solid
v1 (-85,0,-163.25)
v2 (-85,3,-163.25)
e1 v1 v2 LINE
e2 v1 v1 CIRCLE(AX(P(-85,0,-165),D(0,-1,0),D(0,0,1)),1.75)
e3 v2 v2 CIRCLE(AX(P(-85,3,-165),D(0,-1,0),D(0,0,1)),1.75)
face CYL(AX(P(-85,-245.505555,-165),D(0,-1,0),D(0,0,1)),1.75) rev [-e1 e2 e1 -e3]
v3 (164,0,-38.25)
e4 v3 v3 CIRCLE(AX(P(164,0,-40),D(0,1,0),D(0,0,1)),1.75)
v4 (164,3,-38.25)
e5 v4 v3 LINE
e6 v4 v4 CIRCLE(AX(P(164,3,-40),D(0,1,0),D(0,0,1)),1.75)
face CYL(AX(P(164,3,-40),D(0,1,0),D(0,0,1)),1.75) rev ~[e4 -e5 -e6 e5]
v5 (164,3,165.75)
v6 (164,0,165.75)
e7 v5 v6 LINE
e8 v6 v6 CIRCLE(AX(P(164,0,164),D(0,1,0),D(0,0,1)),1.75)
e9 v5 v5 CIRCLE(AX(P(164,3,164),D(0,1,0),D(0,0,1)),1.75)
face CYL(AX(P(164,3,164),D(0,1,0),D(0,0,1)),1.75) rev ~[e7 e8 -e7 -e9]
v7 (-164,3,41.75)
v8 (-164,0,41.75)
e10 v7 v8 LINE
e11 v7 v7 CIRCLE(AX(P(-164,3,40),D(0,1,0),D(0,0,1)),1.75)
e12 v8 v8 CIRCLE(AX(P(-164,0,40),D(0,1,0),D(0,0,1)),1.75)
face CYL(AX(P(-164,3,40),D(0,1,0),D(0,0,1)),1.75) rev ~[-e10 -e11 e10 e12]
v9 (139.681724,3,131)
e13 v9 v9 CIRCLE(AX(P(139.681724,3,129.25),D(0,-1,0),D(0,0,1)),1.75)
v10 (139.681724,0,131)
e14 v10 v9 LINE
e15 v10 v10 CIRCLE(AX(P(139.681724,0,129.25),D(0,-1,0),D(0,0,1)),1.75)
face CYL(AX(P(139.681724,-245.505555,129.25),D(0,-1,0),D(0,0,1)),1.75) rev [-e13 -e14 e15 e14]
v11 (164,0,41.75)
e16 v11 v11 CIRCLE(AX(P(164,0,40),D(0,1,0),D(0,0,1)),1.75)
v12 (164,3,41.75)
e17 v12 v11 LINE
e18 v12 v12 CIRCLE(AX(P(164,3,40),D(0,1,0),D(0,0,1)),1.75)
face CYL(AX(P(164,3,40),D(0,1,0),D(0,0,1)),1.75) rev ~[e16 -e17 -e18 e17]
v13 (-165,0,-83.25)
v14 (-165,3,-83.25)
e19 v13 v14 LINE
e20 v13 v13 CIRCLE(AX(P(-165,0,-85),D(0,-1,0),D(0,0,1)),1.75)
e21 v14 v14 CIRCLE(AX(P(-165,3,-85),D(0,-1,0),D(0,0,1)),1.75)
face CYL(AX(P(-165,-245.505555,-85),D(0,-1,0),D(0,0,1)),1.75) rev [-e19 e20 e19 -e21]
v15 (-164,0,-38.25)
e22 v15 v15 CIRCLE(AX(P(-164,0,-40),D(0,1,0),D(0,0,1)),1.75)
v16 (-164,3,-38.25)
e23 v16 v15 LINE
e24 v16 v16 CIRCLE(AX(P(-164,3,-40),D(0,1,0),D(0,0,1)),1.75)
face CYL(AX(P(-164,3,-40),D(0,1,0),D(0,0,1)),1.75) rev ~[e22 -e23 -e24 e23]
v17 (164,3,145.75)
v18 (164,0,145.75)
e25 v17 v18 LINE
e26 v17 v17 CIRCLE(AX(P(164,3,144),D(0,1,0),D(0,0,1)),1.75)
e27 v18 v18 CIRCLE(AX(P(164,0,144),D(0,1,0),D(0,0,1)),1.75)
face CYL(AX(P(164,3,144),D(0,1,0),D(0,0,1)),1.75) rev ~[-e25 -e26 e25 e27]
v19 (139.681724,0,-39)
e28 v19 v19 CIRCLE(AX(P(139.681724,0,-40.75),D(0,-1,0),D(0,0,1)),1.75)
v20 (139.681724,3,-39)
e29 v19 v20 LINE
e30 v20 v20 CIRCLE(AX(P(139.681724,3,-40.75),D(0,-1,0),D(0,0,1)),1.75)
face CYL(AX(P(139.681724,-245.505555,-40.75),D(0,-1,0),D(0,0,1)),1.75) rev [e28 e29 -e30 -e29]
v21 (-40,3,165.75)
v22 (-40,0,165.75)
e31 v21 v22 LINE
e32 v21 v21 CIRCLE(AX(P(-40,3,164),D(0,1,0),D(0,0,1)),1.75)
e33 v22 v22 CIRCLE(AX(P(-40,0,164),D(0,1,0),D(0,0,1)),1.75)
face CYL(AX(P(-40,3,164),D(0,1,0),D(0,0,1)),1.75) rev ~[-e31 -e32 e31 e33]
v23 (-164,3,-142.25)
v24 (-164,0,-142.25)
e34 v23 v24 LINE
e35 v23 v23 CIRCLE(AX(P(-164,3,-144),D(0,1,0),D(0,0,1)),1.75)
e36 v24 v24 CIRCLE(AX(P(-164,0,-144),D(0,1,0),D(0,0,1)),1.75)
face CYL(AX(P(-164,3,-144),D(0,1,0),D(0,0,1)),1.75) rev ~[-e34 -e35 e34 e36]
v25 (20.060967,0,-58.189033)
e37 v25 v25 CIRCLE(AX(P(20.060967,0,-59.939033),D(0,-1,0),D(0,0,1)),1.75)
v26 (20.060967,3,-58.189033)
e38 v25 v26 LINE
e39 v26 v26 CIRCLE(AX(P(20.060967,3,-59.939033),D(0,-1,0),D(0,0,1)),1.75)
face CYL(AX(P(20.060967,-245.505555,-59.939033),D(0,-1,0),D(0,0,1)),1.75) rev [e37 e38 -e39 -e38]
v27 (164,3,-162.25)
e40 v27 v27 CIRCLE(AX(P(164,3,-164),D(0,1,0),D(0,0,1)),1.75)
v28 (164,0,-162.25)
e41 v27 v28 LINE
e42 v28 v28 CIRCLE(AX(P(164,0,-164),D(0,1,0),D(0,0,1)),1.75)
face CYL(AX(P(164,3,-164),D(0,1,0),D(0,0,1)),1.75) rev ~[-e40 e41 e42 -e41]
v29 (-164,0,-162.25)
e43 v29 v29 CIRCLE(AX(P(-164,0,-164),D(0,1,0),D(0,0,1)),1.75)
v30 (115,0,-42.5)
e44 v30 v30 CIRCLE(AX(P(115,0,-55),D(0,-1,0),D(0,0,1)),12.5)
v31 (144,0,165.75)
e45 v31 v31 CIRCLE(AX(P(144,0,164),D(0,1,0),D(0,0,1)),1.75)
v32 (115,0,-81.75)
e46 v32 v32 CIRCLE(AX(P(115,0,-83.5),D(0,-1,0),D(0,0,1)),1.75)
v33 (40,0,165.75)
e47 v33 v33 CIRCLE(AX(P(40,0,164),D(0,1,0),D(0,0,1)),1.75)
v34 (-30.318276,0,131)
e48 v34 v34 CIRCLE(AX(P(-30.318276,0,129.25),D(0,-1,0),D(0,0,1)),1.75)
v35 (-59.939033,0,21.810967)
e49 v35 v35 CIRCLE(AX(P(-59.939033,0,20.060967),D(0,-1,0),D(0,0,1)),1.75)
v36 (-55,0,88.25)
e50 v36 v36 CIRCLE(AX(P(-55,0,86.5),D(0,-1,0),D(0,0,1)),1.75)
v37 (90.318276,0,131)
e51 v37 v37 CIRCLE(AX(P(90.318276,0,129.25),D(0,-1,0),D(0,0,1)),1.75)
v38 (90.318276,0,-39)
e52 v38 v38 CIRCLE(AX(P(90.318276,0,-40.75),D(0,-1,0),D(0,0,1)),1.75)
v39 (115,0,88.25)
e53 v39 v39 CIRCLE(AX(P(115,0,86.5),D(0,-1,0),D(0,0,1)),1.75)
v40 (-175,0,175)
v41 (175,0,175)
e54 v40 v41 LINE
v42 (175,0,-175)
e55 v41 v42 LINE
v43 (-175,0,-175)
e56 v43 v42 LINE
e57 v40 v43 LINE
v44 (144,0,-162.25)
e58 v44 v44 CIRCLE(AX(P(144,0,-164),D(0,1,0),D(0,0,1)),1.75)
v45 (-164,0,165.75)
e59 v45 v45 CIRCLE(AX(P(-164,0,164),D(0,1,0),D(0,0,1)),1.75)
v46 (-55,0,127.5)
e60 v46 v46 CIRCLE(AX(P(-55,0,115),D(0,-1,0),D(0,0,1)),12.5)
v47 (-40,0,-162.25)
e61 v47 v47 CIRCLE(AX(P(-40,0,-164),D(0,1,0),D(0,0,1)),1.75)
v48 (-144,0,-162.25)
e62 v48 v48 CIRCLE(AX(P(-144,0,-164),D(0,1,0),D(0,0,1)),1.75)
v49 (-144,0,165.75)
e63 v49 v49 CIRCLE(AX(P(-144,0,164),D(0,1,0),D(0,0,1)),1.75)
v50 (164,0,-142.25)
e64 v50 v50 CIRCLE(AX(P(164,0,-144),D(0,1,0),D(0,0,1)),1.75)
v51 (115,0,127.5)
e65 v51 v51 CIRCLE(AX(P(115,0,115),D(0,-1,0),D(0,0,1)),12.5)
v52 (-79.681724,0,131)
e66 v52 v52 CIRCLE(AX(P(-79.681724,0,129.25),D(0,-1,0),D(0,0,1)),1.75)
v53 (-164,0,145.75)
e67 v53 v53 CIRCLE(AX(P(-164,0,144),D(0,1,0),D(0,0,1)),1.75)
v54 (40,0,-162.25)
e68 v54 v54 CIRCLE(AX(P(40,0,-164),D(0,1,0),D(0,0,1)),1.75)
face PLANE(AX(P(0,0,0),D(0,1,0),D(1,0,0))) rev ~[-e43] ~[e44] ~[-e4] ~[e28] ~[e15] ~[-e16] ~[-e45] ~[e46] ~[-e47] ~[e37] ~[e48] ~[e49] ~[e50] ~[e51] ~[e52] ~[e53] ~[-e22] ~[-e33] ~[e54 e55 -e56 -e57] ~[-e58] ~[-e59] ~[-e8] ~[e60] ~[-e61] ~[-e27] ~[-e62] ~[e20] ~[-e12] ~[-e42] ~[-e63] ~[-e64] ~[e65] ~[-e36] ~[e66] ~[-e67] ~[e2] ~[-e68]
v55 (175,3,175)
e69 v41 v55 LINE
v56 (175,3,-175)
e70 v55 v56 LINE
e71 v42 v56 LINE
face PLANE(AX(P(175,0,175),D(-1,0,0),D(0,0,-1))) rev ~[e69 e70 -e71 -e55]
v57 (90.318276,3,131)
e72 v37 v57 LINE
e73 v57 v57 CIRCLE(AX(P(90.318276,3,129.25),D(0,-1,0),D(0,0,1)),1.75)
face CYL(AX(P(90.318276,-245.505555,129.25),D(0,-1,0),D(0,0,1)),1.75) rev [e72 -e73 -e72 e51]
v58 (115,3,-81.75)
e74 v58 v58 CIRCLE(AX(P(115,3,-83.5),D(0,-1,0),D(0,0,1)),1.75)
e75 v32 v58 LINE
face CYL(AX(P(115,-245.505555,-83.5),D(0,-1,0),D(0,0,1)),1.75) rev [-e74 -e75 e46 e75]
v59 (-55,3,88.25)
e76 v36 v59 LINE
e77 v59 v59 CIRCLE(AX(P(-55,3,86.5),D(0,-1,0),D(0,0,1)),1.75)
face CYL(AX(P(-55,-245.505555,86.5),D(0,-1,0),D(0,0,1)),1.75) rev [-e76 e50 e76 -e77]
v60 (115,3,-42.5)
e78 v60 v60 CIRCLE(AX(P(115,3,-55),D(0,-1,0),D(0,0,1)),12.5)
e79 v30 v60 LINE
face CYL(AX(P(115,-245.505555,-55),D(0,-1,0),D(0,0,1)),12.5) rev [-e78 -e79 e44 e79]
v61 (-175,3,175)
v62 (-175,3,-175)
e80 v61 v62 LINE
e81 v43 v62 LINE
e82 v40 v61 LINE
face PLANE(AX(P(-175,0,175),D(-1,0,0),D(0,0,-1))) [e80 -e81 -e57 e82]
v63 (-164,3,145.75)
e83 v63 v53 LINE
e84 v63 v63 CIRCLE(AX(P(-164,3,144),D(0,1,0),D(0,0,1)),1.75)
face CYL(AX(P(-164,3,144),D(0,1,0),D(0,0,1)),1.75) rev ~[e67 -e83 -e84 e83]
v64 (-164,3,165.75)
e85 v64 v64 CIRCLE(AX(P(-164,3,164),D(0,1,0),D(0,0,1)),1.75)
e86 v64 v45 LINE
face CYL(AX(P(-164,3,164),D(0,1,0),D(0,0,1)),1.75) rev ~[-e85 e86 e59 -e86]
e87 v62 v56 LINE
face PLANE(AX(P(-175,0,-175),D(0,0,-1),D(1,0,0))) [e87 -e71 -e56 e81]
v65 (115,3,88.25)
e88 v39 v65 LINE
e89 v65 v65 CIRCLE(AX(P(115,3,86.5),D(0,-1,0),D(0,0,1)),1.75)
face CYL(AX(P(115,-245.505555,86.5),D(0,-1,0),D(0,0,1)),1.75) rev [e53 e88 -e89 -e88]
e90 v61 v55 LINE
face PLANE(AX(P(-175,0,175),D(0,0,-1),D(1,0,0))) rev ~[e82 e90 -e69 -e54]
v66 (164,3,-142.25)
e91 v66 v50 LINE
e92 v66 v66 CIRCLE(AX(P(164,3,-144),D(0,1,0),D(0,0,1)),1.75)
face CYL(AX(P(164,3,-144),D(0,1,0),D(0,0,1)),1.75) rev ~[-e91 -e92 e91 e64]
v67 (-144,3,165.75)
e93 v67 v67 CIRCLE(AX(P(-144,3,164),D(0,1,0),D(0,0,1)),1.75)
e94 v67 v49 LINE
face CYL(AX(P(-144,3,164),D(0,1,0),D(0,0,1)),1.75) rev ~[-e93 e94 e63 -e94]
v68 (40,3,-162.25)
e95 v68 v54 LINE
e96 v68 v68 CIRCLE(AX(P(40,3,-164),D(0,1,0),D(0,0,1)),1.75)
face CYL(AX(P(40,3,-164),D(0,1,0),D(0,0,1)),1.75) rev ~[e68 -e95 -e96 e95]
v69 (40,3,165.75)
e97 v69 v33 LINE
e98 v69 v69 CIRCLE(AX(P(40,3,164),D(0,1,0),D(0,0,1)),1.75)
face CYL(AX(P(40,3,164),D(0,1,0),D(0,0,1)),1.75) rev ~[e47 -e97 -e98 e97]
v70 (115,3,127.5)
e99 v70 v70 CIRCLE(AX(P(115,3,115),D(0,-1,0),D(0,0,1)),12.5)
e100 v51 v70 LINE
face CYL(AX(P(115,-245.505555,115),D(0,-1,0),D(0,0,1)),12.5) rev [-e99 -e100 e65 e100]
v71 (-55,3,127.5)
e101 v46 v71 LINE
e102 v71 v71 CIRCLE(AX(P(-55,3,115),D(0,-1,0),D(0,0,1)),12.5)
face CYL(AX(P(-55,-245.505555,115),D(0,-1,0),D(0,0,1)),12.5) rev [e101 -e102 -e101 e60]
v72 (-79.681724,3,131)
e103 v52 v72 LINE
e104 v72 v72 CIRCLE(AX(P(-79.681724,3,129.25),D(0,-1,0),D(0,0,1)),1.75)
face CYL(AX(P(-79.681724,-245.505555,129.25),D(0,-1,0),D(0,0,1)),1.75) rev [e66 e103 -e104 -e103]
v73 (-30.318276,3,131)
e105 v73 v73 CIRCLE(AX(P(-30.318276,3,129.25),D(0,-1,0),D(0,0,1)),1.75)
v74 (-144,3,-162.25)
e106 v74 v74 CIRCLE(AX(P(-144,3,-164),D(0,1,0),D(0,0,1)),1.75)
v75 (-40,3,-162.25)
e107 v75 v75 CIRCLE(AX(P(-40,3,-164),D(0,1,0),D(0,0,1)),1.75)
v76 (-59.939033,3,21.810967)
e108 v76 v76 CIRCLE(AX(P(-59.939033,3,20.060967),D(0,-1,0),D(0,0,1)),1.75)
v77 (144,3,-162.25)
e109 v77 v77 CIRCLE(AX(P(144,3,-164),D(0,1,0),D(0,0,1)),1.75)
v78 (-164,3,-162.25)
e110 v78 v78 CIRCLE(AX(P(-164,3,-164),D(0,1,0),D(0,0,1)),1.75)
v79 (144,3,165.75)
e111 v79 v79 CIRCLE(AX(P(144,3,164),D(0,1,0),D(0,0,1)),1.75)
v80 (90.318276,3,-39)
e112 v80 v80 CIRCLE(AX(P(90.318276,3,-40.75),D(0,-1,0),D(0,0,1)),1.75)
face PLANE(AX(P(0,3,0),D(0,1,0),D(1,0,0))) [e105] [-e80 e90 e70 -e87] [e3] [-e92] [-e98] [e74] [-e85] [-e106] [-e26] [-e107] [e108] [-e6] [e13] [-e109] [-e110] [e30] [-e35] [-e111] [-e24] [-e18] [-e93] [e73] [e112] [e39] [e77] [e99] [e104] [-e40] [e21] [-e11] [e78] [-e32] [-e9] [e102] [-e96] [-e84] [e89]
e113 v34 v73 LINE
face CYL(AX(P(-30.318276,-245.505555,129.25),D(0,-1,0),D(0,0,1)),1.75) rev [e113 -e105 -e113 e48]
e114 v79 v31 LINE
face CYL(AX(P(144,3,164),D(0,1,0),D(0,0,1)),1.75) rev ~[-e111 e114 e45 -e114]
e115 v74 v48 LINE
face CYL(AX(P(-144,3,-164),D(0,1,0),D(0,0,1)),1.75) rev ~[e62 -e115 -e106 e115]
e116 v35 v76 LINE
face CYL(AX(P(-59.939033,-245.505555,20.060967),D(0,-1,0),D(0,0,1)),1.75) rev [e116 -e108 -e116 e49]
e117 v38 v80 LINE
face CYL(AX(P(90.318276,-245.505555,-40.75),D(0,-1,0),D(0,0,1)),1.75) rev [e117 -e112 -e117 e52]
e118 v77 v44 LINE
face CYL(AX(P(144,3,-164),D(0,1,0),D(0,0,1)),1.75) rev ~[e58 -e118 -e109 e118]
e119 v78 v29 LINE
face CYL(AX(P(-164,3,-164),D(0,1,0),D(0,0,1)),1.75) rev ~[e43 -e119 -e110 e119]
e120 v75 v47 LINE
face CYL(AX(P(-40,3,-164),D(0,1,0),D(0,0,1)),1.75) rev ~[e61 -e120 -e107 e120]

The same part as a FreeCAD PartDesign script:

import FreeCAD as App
import Part
import Sketcher

V = App.Vector


def add_polygon(sketch, points):
    """Adds a closed chain of lines whose ends are joined by coincident constraints."""
    first, n = sketch.GeometryCount, len(points)
    for a, b in zip(points, points[1:] + points[:1]):
        sketch.addGeometry(Part.LineSegment(App.Vector(*a, 0), App.Vector(*b, 0)), False)
    for i in range(n):
        sketch.addConstraint(Sketcher.Constraint("Coincident", first + i, 2, first + (i + 1) % n, 1))

doc = App.newDocument("Part")
body = doc.addObject("PartDesign::Body", "Body")

sketch1 = doc.addObject("Sketcher::SketchObject", "Sketch")
body.addObject(sketch1)
sketch1.AttachmentSupport = (doc.XZ_Plane, [""])
sketch1.MapMode = "FlatFace"
add_polygon(sketch1, [(-175, -175), (-175, 175), (175, 175), (175, -175)])
sketch1.addConstraint(Sketcher.Constraint("Vertical", 0))
sketch1.addConstraint(Sketcher.Constraint("Horizontal", 1))
sketch1.addConstraint(Sketcher.Constraint("Vertical", 2))
sketch1.addConstraint(Sketcher.Constraint("Horizontal", 3))
sketch1.addConstraint(Sketcher.Constraint("Symmetric", 0, 2, 2, 2, -1, 1))
sketch1.addConstraint(Sketcher.Constraint("Equal", 3, 0))
sketch1.addConstraint(Sketcher.Constraint("DistanceX", 1, 1, 1, 2, 350.0))
pad1 = doc.addObject("PartDesign::Pad", "Pad")
body.addObject(pad1)
pad1.Profile = sketch1
pad1.Length = 3
pad1.Reversed = True

sketch2 = doc.addObject("Sketcher::SketchObject", "Sketch001")
body.addObject(sketch2)
sketch2.AttachmentSupport = (doc.XZ_Plane, [""])
sketch2.MapMode = "FlatFace"
sketch2.AttachmentOffset = App.Placement(V(0, 0, -3), App.Rotation())
sketch2.addGeometry(Part.Circle(V(20.1, -59.9, 0), V(0, 0, 1), 1.8), False)
sketch2.addGeometry(Part.Circle(V(-59.9, 20.1, 0), V(0, 0, 1), 1.8), False)
sketch2.addGeometry(Part.Circle(V(-165, -85, 0), V(0, 0, 1), 1.8), False)
sketch2.addGeometry(Part.Circle(V(-85, -165, 0), V(0, 0, 1), 1.8), False)
sketch2.addGeometry(Part.Circle(V(-55, 115, 0), V(0, 0, 1), 12.5), False)
sketch2.addGeometry(Part.Circle(V(115, 115, 0), V(0, 0, 1), 12.5), False)
sketch2.addGeometry(Part.Circle(V(115, -55, 0), V(0, 0, 1), 12.5), False)
sketch2.addGeometry(Part.Circle(V(-55, 86.5, 0), V(0, 0, 1), 1.8), False)
sketch2.addGeometry(Part.Circle(V(115, 86.5, 0), V(0, 0, 1), 1.8), False)
sketch2.addGeometry(Part.Circle(V(115, -83.5, 0), V(0, 0, 1), 1.8), False)
sketch2.addGeometry(Part.Circle(V(139.7, -40.8, 0), V(0, 0, 1), 1.8), False)
sketch2.addGeometry(Part.Circle(V(90.3, -40.8, 0), V(0, 0, 1), 1.8), False)
sketch2.addGeometry(Part.Circle(V(-30.3, 129.2, 0), V(0, 0, 1), 1.8), False)
sketch2.addGeometry(Part.Circle(V(-79.7, 129.2, 0), V(0, 0, 1), 1.8), False)
sketch2.addGeometry(Part.Circle(V(139.7, 129.2, 0), V(0, 0, 1), 1.8), False)
sketch2.addGeometry(Part.Circle(V(90.3, 129.2, 0), V(0, 0, 1), 1.8), False)
sketch2.addConstraint(Sketcher.Constraint("Equal", 0, 1))
sketch2.addConstraint(Sketcher.Constraint("Equal", 1, 2))
sketch2.addConstraint(Sketcher.Constraint("Equal", 2, 3))
sketch2.addConstraint(Sketcher.Constraint("Equal", 4, 5))
sketch2.addConstraint(Sketcher.Constraint("Equal", 5, 6))
sketch2.addConstraint(Sketcher.Constraint("Equal", 3, 7))
sketch2.addConstraint(Sketcher.Constraint("Equal", 7, 8))
sketch2.addConstraint(Sketcher.Constraint("Equal", 8, 9))
sketch2.addConstraint(Sketcher.Constraint("Equal", 9, 10))
sketch2.addConstraint(Sketcher.Constraint("Equal", 10, 11))
sketch2.addConstraint(Sketcher.Constraint("Equal", 11, 12))
sketch2.addConstraint(Sketcher.Constraint("Equal", 12, 13))
sketch2.addConstraint(Sketcher.Constraint("Equal", 13, 14))
sketch2.addConstraint(Sketcher.Constraint("Equal", 14, 15))
sketch2.addConstraint(Sketcher.Constraint("Horizontal", 4, 3, 5, 3))
sketch2.addConstraint(Sketcher.Constraint("Horizontal", 7, 3, 8, 3))
sketch2.addConstraint(Sketcher.Constraint("Horizontal", 10, 3, 11, 3))
sketch2.addConstraint(Sketcher.Constraint("Horizontal", 12, 3, 13, 3))
sketch2.addConstraint(Sketcher.Constraint("Horizontal", 13, 3, 14, 3))
sketch2.addConstraint(Sketcher.Constraint("Horizontal", 14, 3, 15, 3))
sketch2.addConstraint(Sketcher.Constraint("Vertical", 5, 3, 6, 3))
sketch2.addConstraint(Sketcher.Constraint("Vertical", 4, 3, 7, 3))
sketch2.addConstraint(Sketcher.Constraint("Vertical", 6, 3, 8, 3))
sketch2.addConstraint(Sketcher.Constraint("Vertical", 8, 3, 9, 3))
sketch2.addConstraint(Sketcher.Constraint("Vertical", 10, 3, 14, 3))
sketch2.addConstraint(Sketcher.Constraint("Vertical", 11, 3, 15, 3))
sketch2.addConstraint(Sketcher.Constraint("Diameter", 4, 25.0))
sketch2.addConstraint(Sketcher.Constraint("Diameter", 0, 3.5))
sketch2.addConstraint(Sketcher.Constraint("DistanceX", 2, 3, -1, 1, 165.0))
sketch2.addConstraint(Sketcher.Constraint("DistanceY", 2, 3, -1, 1, 85.0))
sketch2.addConstraint(Sketcher.Constraint("DistanceX", 3, 3, -1, 1, 85.0))
sketch2.addConstraint(Sketcher.Constraint("DistanceY", 3, 3, -1, 1, 165.0))
sketch2.addConstraint(Sketcher.Constraint("DistanceX", 4, 3, -1, 1, 55.0))
sketch2.addConstraint(Sketcher.Constraint("DistanceY", -1, 1, 4, 3, 115.0))
sketch2.addConstraint(Sketcher.Constraint("DistanceX", -1, 1, 5, 3, 115.0))
sketch2.addConstraint(Sketcher.Constraint("DistanceY", 6, 3, -1, 1, 55.0))
sketch2.addConstraint(Sketcher.Constraint("DistanceX", 1, 3, 0, 3, 80.0))
sketch2.addConstraint(Sketcher.Constraint("DistanceY", 0, 3, 1, 3, 80.0))
sketch2.addConstraint(Sketcher.Constraint("DistanceY", 9, 3, 8, 3, 170.0))
sketch2.addConstraint(Sketcher.Constraint("DistanceY", 10, 3, 14, 3, 170.0))
sketch2.addConstraint(Sketcher.Constraint("DistanceX", 12, 3, 14, 3, 170.0))
sketch2.addConstraint(Sketcher.Constraint("DistanceY", -1, 1, 7, 3, 86.5))
sketch2.addConstraint(Sketcher.Constraint("DistanceY", 10, 3, -1, 1, 40.75))
sketch2.addConstraint(Sketcher.Constraint("DistanceX", 11, 3, 10, 3, 49.363448))
sketch2.addConstraint(Sketcher.Constraint("DistanceX", 0, 3, 11, 3, 70.257309))
sketch2.addConstraint(Sketcher.Constraint("DistanceX", 13, 3, 12, 3, 49.363448))
sketch2.addConstraint(Sketcher.Constraint("DistanceX", -1, 1, 0, 3, 20.060967))
sketch2.addConstraint(Sketcher.Constraint("DistanceY", 0, 3, -1, 1, 59.939033))
pocket1 = doc.addObject("PartDesign::Pocket", "Pocket")
body.addObject(pocket1)
pocket1.Profile = sketch2
pocket1.Type = "ThroughAll"
pocket1.Midplane = True

sketch3 = doc.addObject("Sketcher::SketchObject", "Sketch002")
body.addObject(sketch3)
sketch3.AttachmentSupport = (doc.XZ_Plane, [""])
sketch3.MapMode = "FlatFace"
sketch3.AttachmentOffset = App.Placement(V(0, 0, -3), App.Rotation())
sketch3.addGeometry(Part.Circle(V(-164, -144, 0), V(0, 0, 1), 1.8), False)
sketch3.addGeometry(Part.Circle(V(-164, -164, 0), V(0, 0, 1), 1.8), False)
sketch3.addGeometry(Part.Circle(V(-144, -164, 0), V(0, 0, 1), 1.8), False)
sketch3.addGeometry(Part.Circle(V(164, -164, 0), V(0, 0, 1), 1.8), False)
sketch3.addGeometry(Part.Circle(V(144, -164, 0), V(0, 0, 1), 1.8), False)
sketch3.addGeometry(Part.Circle(V(164, -144, 0), V(0, 0, 1), 1.8), False)
sketch3.addGeometry(Part.Circle(V(164, 164, 0), V(0, 0, 1), 1.8), False)
sketch3.addGeometry(Part.Circle(V(164, 144, 0), V(0, 0, 1), 1.8), False)
sketch3.addGeometry(Part.Circle(V(144, 164, 0), V(0, 0, 1), 1.8), False)
sketch3.addGeometry(Part.Circle(V(-164, 164, 0), V(0, 0, 1), 1.8), False)
sketch3.addGeometry(Part.Circle(V(-144, 164, 0), V(0, 0, 1), 1.8), False)
sketch3.addGeometry(Part.Circle(V(-164, 144, 0), V(0, 0, 1), 1.8), False)
sketch3.addGeometry(Part.Circle(V(-164, -40, 0), V(0, 0, 1), 1.8), False)
sketch3.addGeometry(Part.Circle(V(-164, 40, 0), V(0, 0, 1), 1.8), False)
sketch3.addGeometry(Part.Circle(V(40, -164, 0), V(0, 0, 1), 1.8), False)
sketch3.addGeometry(Part.Circle(V(-40, -164, 0), V(0, 0, 1), 1.8), False)
sketch3.addGeometry(Part.Circle(V(164, 40, 0), V(0, 0, 1), 1.8), False)
sketch3.addGeometry(Part.Circle(V(164, -40, 0), V(0, 0, 1), 1.8), False)
sketch3.addGeometry(Part.Circle(V(-40, 164, 0), V(0, 0, 1), 1.8), False)
sketch3.addGeometry(Part.Circle(V(40, 164, 0), V(0, 0, 1), 1.8), False)
sketch3.addConstraint(Sketcher.Constraint("Equal", 0, 1))
sketch3.addConstraint(Sketcher.Constraint("Equal", 1, 2))
sketch3.addConstraint(Sketcher.Constraint("Equal", 2, 3))
sketch3.addConstraint(Sketcher.Constraint("Equal", 3, 4))
sketch3.addConstraint(Sketcher.Constraint("Equal", 4, 5))
sketch3.addConstraint(Sketcher.Constraint("Equal", 5, 6))
sketch3.addConstraint(Sketcher.Constraint("Equal", 6, 7))
sketch3.addConstraint(Sketcher.Constraint("Equal", 7, 8))
sketch3.addConstraint(Sketcher.Constraint("Equal", 8, 9))
sketch3.addConstraint(Sketcher.Constraint("Equal", 9, 10))
sketch3.addConstraint(Sketcher.Constraint("Equal", 10, 11))
sketch3.addConstraint(Sketcher.Constraint("Equal", 11, 12))
sketch3.addConstraint(Sketcher.Constraint("Equal", 12, 13))
sketch3.addConstraint(Sketcher.Constraint("Equal", 13, 14))
sketch3.addConstraint(Sketcher.Constraint("Equal", 14, 15))
sketch3.addConstraint(Sketcher.Constraint("Equal", 15, 16))
sketch3.addConstraint(Sketcher.Constraint("Equal", 16, 17))
sketch3.addConstraint(Sketcher.Constraint("Equal", 17, 18))
sketch3.addConstraint(Sketcher.Constraint("Equal", 18, 19))
sketch3.addConstraint(Sketcher.Constraint("Symmetric", 1, 3, 6, 3, -1, 1))
sketch3.addConstraint(Sketcher.Constraint("Symmetric", 0, 3, 7, 3, -1, 1))
sketch3.addConstraint(Sketcher.Constraint("Symmetric", 2, 3, 8, 3, -1, 1))
sketch3.addConstraint(Sketcher.Constraint("Symmetric", 3, 3, 9, 3, -1, 1))
sketch3.addConstraint(Sketcher.Constraint("Symmetric", 4, 3, 10, 3, -1, 1))
sketch3.addConstraint(Sketcher.Constraint("Symmetric", 5, 3, 11, 3, -1, 1))
sketch3.addConstraint(Sketcher.Constraint("Symmetric", 12, 3, 16, 3, -1, 1))
sketch3.addConstraint(Sketcher.Constraint("Symmetric", 13, 3, 17, 3, -1, 1))
sketch3.addConstraint(Sketcher.Constraint("Symmetric", 14, 3, 18, 3, -1, 1))
sketch3.addConstraint(Sketcher.Constraint("Symmetric", 15, 3, 19, 3, -1, 1))
sketch3.addConstraint(Sketcher.Constraint("Symmetric", 1, 3, 3, 3, -2))
sketch3.addConstraint(Sketcher.Constraint("Symmetric", 2, 3, 4, 3, -2))
sketch3.addConstraint(Sketcher.Constraint("Symmetric", 0, 3, 5, 3, -2))
sketch3.addConstraint(Sketcher.Constraint("Symmetric", 14, 3, 15, 3, -2))
sketch3.addConstraint(Sketcher.Constraint("Symmetric", 13, 3, 16, 3, -2))
sketch3.addConstraint(Sketcher.Constraint("Horizontal", 1, 3, 2, 3))
sketch3.addConstraint(Sketcher.Constraint("Horizontal", 4, 3, 14, 3))
sketch3.addConstraint(Sketcher.Constraint("Vertical", 0, 3, 1, 3))
sketch3.addConstraint(Sketcher.Constraint("Vertical", 11, 3, 12, 3))
sketch3.addConstraint(Sketcher.Constraint("Diameter", 0, 3.5))
sketch3.addConstraint(Sketcher.Constraint("DistanceX", 0, 3, -1, 1, 164.0))
sketch3.addConstraint(Sketcher.Constraint("DistanceY", 0, 3, -1, 1, 144.0))
sketch3.addConstraint(Sketcher.Constraint("DistanceY", 1, 3, -1, 1, 164.0))
sketch3.addConstraint(Sketcher.Constraint("DistanceX", 2, 3, -1, 1, 144.0))
sketch3.addConstraint(Sketcher.Constraint("DistanceY", 12, 3, -1, 1, 40.0))
sketch3.addConstraint(Sketcher.Constraint("DistanceX", -1, 1, 14, 3, 40.0))
pocket2 = doc.addObject("PartDesign::Pocket", "Pocket001")
body.addObject(pocket2)
pocket2.Profile = sketch3
pocket2.Type = "ThroughAll"
pocket2.Reversed = True

doc.recompute()
